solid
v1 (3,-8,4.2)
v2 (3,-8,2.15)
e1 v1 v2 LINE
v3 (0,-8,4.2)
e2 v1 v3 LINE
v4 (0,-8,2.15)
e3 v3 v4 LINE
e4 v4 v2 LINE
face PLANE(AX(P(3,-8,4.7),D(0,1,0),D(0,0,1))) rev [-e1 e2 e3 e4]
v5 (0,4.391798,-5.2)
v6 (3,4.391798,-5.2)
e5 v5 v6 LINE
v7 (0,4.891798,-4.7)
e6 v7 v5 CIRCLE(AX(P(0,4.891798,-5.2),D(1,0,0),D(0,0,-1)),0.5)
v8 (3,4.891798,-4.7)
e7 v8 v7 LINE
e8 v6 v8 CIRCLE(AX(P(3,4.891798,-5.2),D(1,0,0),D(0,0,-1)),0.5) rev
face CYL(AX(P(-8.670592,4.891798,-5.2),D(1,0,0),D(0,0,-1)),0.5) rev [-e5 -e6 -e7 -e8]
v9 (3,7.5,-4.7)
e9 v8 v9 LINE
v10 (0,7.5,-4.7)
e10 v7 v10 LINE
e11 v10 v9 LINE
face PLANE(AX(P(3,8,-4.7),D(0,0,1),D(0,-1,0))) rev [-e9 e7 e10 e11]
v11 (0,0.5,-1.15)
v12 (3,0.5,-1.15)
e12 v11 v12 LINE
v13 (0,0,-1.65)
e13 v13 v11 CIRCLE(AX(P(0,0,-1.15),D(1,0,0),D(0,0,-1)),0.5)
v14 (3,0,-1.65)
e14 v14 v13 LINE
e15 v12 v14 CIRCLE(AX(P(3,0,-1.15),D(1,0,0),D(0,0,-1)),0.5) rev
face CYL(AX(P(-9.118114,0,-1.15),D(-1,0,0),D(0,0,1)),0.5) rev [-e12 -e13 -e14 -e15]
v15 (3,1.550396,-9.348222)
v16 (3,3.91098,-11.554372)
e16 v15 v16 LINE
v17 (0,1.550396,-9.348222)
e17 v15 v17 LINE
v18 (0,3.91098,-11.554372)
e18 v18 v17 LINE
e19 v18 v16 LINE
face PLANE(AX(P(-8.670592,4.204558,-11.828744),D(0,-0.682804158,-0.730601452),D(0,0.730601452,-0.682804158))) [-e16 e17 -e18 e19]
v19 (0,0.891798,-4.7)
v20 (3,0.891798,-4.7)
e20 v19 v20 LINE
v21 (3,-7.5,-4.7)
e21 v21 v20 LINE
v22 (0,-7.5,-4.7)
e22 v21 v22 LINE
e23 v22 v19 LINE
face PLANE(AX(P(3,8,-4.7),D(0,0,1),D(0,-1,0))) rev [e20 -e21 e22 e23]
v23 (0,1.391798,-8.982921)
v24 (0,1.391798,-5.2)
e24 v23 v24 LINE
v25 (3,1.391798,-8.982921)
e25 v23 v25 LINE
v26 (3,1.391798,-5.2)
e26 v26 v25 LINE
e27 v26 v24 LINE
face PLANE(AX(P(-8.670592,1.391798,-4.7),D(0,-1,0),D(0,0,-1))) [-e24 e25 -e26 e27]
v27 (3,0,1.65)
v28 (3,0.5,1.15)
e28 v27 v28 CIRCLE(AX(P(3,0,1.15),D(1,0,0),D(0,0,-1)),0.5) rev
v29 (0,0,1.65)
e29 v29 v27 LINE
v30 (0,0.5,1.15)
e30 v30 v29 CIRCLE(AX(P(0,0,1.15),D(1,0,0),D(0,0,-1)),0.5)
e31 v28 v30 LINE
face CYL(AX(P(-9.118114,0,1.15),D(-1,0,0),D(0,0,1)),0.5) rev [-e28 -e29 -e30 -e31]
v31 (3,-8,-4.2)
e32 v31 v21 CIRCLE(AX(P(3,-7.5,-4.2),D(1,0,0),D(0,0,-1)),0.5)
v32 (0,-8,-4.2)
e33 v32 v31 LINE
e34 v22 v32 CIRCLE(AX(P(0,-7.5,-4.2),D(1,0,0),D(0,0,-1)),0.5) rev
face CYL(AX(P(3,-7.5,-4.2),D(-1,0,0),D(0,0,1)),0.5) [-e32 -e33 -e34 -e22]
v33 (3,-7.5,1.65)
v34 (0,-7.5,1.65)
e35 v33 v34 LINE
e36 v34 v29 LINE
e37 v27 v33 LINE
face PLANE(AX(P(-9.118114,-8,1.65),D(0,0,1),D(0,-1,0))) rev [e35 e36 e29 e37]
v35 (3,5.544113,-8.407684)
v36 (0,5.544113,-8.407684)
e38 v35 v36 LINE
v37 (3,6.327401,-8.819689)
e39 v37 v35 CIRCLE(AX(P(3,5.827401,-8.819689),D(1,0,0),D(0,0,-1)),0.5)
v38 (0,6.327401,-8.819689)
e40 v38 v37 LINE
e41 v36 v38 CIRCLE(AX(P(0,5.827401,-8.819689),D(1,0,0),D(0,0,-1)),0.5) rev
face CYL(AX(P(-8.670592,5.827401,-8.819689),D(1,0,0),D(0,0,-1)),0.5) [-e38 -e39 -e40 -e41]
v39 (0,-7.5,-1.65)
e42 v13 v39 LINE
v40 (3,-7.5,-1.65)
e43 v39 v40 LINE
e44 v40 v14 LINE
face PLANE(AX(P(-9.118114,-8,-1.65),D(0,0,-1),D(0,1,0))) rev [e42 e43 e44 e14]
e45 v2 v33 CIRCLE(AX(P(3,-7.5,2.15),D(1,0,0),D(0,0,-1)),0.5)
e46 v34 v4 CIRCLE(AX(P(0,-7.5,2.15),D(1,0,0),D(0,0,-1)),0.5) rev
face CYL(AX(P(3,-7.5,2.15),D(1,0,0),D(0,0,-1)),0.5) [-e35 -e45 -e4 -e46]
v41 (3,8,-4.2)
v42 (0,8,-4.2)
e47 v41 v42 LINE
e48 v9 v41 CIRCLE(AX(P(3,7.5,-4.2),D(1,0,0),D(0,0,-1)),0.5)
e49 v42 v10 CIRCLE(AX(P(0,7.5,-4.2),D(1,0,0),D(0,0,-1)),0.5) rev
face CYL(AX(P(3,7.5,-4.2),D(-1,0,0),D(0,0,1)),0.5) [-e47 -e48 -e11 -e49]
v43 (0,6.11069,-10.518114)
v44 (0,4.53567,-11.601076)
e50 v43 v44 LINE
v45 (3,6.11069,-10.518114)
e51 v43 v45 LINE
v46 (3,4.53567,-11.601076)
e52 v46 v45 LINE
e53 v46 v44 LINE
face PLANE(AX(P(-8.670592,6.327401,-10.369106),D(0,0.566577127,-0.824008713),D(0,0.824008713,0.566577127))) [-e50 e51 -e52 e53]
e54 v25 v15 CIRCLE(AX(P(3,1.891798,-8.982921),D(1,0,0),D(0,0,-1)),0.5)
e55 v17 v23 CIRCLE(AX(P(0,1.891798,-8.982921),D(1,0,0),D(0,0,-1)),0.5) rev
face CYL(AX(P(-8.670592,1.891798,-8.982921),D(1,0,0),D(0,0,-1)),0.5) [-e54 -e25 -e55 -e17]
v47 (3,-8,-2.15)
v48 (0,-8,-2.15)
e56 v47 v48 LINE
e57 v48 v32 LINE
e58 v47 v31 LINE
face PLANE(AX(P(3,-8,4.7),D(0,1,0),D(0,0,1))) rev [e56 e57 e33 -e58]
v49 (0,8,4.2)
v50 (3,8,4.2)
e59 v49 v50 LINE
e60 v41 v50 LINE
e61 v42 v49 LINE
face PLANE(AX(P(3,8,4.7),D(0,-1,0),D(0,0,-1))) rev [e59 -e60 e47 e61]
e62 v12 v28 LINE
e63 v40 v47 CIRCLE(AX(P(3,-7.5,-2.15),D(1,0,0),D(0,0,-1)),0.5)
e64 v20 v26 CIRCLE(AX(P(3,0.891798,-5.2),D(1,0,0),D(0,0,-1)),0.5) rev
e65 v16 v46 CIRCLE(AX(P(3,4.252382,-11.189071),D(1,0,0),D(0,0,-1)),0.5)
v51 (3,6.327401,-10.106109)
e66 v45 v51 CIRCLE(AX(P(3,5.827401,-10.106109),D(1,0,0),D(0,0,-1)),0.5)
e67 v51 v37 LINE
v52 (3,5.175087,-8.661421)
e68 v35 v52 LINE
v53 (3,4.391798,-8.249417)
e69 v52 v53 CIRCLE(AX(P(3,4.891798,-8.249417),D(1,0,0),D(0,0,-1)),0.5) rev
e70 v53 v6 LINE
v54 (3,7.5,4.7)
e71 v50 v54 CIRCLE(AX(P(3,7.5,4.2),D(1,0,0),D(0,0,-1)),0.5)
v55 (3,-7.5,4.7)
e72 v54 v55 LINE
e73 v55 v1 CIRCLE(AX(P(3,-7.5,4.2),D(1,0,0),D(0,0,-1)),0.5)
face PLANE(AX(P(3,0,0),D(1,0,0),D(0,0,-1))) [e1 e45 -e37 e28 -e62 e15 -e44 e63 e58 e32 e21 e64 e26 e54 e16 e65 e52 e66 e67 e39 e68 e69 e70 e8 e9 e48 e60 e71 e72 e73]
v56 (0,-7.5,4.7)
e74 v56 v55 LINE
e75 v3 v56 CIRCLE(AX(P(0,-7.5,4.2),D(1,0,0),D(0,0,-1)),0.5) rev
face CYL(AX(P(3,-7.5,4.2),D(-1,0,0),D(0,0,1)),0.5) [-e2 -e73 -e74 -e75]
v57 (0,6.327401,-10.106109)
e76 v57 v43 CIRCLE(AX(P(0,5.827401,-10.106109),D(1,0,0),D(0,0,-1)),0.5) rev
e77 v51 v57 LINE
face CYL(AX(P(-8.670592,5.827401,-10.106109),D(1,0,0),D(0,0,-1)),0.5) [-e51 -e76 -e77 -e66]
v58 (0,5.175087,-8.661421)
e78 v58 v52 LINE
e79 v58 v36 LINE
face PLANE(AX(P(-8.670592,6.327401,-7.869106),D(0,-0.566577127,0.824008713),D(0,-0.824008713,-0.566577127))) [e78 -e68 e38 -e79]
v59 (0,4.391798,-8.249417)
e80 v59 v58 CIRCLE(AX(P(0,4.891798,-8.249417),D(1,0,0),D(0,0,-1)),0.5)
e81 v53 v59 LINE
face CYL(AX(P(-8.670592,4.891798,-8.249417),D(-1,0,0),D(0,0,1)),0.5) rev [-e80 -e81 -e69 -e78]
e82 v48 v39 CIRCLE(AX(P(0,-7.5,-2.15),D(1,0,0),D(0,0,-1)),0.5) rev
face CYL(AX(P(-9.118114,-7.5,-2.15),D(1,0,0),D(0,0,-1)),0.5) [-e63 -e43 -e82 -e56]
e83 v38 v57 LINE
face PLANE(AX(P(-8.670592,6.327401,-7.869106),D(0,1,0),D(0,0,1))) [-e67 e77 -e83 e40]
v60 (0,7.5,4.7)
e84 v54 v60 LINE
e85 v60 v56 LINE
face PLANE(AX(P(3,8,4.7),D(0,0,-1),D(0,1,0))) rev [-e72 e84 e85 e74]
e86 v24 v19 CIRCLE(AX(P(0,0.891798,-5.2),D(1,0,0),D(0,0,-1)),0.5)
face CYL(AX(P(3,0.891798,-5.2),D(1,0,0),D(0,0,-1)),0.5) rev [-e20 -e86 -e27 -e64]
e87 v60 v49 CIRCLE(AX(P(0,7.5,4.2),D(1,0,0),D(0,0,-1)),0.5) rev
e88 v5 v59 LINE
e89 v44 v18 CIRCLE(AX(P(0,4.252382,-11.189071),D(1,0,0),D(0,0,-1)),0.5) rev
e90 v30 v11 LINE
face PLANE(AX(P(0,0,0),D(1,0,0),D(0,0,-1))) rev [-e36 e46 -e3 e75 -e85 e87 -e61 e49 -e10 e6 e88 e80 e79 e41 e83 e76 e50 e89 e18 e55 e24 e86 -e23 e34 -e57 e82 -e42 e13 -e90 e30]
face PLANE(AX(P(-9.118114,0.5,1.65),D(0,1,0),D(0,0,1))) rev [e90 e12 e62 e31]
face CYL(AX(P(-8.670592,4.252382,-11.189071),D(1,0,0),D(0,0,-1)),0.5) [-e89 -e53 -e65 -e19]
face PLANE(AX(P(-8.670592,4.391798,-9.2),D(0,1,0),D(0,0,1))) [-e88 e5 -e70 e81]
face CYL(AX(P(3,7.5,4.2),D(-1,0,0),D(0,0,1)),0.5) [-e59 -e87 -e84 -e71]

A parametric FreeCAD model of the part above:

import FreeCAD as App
import Part
import Sketcher

V = App.Vector
Q = App.Units.Quantity


def edges_at(feature, points):
    """Names of the edges that pass closest to the given points."""
    edges = feature.Shape.Edges
    near = lambda p: min(range(len(edges)), key=lambda i: edges[i].distToShape(Part.Vertex(*p))[0])
    return sorted({f"Edge{near(p) + 1}" for p in points})


def add_polygon(sketch, points):
    """Adds a closed chain of lines whose ends are joined by coincident constraints."""
    first, n = sketch.GeometryCount, len(points)
    for a, b in zip(points, points[1:] + points[:1]):
        sketch.addGeometry(Part.LineSegment(App.Vector(*a, 0), App.Vector(*b, 0)), False)
    for i in range(n):
        sketch.addConstraint(Sketcher.Constraint("Coincident", first + i, 2, first + (i + 1) % n, 1))

doc = App.newDocument("Part")
body = doc.addObject("PartDesign::Body", "Body")

# Sketch on YZ plane
sketch1 = body.newObject("Sketcher::SketchObject", "Sketch")
sketch1.AttachmentSupport = (doc.getObject("YZ_Plane"), [""])
sketch1.MapMode = "FlatFace"
add_polygon(sketch1, [(8, 4.7), (-8, 4.7), (-8, -4.7), (8, -4.7)])  # lines 0-3
sketch1.addConstraint([
    Sketcher.Constraint("Horizontal", 0),
    Sketcher.Constraint("Vertical", 1),
    Sketcher.Constraint("Horizontal", 2),
    Sketcher.Constraint("Vertical", 3),
    Sketcher.Constraint("Symmetric", 0, 2, 2, 2, -1, 1),
    Sketcher.Constraint("DistanceX", 0, 2, 0, 1, Q("16 mm")),
    Sketcher.Constraint("DistanceY", 1, 2, 1, 1, Q("9.4 mm")),
])
pad1 = body.newObject("PartDesign::Pad", "Pad")
pad1.Profile = sketch1
pad1.Length = 3

# Sketch on YZ plane
sketch2 = body.newObject("Sketcher::SketchObject", "Sketch001")
sketch2.AttachmentSupport = (doc.getObject("YZ_Plane"), [""])
sketch2.MapMode = "FlatFace"
sketch2.AttachmentOffset = App.Placement(V(0, 0, 3), App.Rotation())
add_polygon(sketch2, [(0.5, 1.65), (-8, 1.65), (-8, -1.65), (0.5, -1.65)])  # lines 0-3
sketch2.addConstraint([
    Sketcher.Constraint("Horizontal", 0),
    Sketcher.Constraint("Vertical", 1),
    Sketcher.Constraint("Horizontal", 2),
    Sketcher.Constraint("Vertical", 3),
    Sketcher.Constraint("DistanceX", 0, 2, 0, 1, Q("8.5 mm")),
    Sketcher.Constraint("DistanceY", 1, 2, 1, 1, Q("3.3 mm")),
    Sketcher.Constraint("DistanceX", 0, 2, -1, 1, Q("8 mm")),
    Sketcher.Constraint("DistanceY", -1, 1, 0, 2, Q("1.65 mm")),
])
pocket1 = body.newObject("PartDesign::Pocket", "Pocket")
pocket1.Profile = sketch2
pocket1.Length = 3

# Sketch on YZ plane
sketch3 = body.newObject("Sketcher::SketchObject", "Sketch002")
sketch3.AttachmentSupport = (doc.getObject("YZ_Plane"), [""])
sketch3.MapMode = "FlatFace"
sketch3.AttachmentOffset = App.Placement(V(0, 0, 3), App.Rotation())
add_polygon(sketch3, [(4.391798, -4.7), (1.391798, -4.7), (1.391798, -9.2), (4.204558, -11.828744), (6.327401, -10.369106), (6.327401, -7.869106), (4.391798, -9.2)])  # lines 0-6
sketch3.addConstraint([
    Sketcher.Constraint("Horizontal", 0),
    Sketcher.Constraint("Vertical", 1),
    Sketcher.Constraint("Vertical", 4),
    Sketcher.Constraint("Vertical", 6),
    Sketcher.Constraint("Parallel", 3, 5),
    Sketcher.Constraint("Horizontal", 1, 2, 5, 2),
    Sketcher.Constraint("DistanceX", 0, 2, 0, 1, Q("3 mm")),
    Sketcher.Constraint("DistanceY", 1, 2, 1, 1, Q("4.5 mm")),
    Sketcher.Constraint("DistanceY", 4, 1, 4, 2, Q("2.5 mm")),
    Sketcher.Constraint("DistanceY", 0, 2, -1, 1, Q("4.7 mm")),
    Sketcher.Constraint("DistanceX", -1, 1, 0, 2, Q("1.391798 mm")),
    Sketcher.Constraint("DistanceX", -1, 1, 3, 2, Q("6.327401 mm")),
    Sketcher.Constraint("Distance", 3, Q("2.576239 mm")),
    Sketcher.Constraint("Distance", 5, Q("2.349008 mm")),
])
pad2 = body.newObject("PartDesign::Pad", "Pad001")
pad2.Profile = sketch3
pad2.Length = 3
pad2.Reversed = True
doc.recompute()

fillet = body.newObject("PartDesign::Fillet", "Fillet")
fillet.Base = (pad2, edges_at(pad2, [
    (1.5, -8, 1.65),
    (1.5, 0.5, 1.65),
    (1.5, 0.5, -1.65),
    (1.5, -8, -1.65),
    (1.5, 4.392, -4.7),
    (1.5, 4.392, -9.2),
    (1.5, 6.327, -7.869),
    (1.5, 6.327, -10.369),
    (1.5, 4.205, -11.829),
    (1.5, 1.392, -9.2),
    (1.5, 1.392, -4.7),
    (1.5, 8, 4.7),
    (1.5, 8, -4.7),
    (1.5, -8, -4.7),
    (1.5, -8, 4.7),
]))
fillet.Radius = 0.5

doc.recompute()
